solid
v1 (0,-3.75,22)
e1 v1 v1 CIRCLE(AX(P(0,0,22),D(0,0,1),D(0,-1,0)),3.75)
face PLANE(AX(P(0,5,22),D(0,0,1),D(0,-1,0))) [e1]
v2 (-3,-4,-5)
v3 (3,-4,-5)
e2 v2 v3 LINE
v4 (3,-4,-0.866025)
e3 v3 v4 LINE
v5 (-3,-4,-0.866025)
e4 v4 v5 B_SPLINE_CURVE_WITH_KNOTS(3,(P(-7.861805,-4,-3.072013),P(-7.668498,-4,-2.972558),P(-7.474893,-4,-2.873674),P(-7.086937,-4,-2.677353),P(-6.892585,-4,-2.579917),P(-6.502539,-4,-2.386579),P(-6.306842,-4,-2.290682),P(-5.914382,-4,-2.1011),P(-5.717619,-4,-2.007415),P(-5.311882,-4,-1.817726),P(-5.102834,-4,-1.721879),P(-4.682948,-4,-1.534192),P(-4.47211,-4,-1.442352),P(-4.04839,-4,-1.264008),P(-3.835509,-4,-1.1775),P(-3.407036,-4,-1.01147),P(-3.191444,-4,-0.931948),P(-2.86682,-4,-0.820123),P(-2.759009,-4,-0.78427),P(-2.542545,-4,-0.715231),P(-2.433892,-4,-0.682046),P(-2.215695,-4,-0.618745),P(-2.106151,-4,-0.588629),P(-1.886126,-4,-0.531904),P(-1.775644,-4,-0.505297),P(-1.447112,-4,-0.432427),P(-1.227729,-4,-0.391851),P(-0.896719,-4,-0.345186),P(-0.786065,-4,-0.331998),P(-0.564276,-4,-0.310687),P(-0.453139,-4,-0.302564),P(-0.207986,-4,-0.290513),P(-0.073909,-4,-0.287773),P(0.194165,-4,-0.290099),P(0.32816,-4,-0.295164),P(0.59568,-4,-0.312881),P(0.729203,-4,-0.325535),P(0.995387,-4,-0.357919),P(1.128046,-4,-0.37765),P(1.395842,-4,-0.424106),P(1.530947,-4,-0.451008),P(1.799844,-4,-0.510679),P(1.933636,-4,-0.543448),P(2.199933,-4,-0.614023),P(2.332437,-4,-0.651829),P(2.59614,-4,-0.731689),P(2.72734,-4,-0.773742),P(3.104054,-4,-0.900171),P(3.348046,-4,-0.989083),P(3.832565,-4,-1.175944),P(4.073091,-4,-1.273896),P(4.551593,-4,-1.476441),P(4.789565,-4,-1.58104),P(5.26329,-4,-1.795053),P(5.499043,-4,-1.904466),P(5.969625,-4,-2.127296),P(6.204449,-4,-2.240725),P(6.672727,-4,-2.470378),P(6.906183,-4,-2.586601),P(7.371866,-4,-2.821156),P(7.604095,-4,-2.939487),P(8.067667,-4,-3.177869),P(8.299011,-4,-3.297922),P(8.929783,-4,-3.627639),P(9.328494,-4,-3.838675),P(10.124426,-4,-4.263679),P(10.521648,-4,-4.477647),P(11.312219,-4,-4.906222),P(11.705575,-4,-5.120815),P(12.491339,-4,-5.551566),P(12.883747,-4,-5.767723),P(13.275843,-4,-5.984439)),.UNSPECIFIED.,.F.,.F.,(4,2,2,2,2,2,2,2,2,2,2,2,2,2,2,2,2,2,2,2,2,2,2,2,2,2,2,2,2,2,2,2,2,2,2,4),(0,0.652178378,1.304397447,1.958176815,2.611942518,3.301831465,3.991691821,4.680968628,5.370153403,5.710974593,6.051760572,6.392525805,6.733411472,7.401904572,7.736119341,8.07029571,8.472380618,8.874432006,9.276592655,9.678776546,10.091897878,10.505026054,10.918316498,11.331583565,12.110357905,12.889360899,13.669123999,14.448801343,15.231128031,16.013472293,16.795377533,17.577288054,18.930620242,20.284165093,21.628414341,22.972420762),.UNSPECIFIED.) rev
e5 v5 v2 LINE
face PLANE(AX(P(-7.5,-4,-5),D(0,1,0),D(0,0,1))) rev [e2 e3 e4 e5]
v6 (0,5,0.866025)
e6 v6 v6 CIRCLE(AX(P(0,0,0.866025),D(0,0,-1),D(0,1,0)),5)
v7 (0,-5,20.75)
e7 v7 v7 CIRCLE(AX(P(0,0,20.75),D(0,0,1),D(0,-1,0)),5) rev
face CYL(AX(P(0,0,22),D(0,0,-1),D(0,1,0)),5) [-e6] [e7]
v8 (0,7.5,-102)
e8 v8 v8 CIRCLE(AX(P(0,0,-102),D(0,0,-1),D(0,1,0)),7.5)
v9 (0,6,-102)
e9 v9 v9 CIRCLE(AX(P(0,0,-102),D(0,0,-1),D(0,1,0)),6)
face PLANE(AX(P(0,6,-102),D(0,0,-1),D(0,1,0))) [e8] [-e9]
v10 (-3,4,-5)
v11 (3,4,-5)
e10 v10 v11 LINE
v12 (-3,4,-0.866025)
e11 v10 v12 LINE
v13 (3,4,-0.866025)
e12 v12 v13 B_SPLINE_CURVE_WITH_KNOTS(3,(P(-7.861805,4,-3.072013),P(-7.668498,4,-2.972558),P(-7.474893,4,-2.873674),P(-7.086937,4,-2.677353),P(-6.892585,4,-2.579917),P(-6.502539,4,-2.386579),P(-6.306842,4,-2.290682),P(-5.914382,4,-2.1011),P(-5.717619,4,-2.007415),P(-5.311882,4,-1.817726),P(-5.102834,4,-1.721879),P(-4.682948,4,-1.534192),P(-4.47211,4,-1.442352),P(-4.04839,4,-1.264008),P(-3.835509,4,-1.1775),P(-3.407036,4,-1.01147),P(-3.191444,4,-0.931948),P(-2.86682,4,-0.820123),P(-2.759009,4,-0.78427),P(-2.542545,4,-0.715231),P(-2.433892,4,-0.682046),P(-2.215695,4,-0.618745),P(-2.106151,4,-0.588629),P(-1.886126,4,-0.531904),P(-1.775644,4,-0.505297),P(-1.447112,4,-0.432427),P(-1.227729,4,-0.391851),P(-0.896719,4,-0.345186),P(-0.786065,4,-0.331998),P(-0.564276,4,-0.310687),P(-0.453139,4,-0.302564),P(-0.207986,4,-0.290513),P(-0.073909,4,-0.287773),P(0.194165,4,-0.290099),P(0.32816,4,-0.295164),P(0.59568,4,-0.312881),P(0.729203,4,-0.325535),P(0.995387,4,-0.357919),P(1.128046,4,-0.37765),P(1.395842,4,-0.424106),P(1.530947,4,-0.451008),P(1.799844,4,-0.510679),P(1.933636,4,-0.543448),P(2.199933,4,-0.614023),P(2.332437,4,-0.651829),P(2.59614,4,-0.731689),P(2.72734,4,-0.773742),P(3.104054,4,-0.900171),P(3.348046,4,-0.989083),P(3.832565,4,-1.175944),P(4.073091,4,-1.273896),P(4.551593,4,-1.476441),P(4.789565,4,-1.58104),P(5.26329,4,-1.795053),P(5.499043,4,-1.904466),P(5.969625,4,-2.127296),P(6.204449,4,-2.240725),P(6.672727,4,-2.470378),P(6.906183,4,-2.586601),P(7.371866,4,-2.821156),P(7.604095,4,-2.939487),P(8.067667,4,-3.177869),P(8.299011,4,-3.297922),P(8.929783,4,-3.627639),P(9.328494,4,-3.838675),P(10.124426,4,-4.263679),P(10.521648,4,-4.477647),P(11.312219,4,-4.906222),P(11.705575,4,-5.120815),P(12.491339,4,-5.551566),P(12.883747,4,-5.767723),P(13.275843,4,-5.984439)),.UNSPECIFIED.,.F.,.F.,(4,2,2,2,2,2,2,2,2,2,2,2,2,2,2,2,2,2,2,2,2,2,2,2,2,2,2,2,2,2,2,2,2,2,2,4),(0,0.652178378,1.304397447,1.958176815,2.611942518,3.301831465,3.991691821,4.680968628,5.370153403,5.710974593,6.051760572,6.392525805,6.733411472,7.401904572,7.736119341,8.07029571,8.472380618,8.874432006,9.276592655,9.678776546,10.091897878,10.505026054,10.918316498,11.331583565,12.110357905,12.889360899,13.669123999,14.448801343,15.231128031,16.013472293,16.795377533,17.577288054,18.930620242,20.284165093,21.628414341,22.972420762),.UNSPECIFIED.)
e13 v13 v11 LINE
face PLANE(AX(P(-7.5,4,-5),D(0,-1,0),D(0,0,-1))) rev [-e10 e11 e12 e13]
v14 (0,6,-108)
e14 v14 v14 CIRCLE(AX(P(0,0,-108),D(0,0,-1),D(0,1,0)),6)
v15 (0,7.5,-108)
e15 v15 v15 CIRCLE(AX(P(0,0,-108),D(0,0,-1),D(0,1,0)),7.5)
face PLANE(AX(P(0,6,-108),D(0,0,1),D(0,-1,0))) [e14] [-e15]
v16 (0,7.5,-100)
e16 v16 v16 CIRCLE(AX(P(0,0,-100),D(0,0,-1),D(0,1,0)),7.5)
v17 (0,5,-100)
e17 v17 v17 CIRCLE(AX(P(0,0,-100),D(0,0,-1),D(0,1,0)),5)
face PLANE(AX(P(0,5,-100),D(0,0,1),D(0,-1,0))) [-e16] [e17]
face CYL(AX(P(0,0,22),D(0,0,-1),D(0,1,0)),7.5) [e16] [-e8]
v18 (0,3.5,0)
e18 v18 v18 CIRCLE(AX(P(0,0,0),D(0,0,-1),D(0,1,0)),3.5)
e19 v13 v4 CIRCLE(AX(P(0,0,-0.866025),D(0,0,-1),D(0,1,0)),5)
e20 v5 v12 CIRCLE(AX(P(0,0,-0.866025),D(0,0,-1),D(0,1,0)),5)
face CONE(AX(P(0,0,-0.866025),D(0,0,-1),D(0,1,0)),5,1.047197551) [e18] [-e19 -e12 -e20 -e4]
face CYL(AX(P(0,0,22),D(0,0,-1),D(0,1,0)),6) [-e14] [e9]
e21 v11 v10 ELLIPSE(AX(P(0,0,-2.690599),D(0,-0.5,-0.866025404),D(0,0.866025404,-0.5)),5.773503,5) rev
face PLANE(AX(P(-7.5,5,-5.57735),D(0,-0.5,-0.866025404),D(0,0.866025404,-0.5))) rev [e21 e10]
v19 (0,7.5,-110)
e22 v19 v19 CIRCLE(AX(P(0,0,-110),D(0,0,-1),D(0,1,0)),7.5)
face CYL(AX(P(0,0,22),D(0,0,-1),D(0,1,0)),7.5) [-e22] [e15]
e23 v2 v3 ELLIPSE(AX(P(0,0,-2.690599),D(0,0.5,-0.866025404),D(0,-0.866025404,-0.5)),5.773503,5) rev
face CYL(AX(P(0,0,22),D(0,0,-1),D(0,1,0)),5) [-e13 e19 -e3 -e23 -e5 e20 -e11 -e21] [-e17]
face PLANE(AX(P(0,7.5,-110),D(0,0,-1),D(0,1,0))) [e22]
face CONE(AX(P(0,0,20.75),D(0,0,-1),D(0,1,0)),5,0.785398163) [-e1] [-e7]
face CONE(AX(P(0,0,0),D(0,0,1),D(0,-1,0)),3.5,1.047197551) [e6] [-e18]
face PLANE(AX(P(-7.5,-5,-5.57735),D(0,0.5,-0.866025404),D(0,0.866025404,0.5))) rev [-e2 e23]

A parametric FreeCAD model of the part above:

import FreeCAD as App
import Part
import Sketcher
Q = App.Units.Quantity


def edges_at(feature, points):
    """Names of the edges that pass closest to the given points."""
    edges = feature.Shape.Edges
    near = lambda p: min(range(len(edges)), key=lambda i: edges[i].distToShape(Part.Vertex(*p))[0])
    return sorted({f"Edge{near(p) + 1}" for p in points})


def add_polygon(sketch, points):
    """Adds a closed chain of lines whose ends are joined by coincident constraints."""
    first, n = sketch.GeometryCount, len(points)
    for a, b in zip(points, points[1:] + points[:1]):
        sketch.addGeometry(Part.LineSegment(App.Vector(*a, 0), App.Vector(*b, 0)), False)
    for i in range(n):
        sketch.addConstraint(Sketcher.Constraint("Coincident", first + i, 2, first + (i + 1) % n, 1))

doc = App.newDocument("Part")
body = doc.addObject("PartDesign::Body", "Body")

sketch1 = body.newObject("Sketcher::SketchObject", "Sketch")
sketch1.AttachmentSupport = (doc.getObject("YZ_Plane"), [""])
sketch1.MapMode = "FlatFace"
add_polygon(sketch1, [(0, 22), (0, -110), (7.5, -110), (7.5, -108), (6, -108), (6, -102), (7.5, -102), (7.5, -100), (5, -100), (5, -0.9), (3.5, 0), (5, 0.9), (5, 22)])
sketch1.addConstraint([
    Sketcher.Constraint("Vertical", 0),
    Sketcher.Constraint("Horizontal", 1),
    Sketcher.Constraint("Vertical", 2),
    Sketcher.Constraint("Horizontal", 3),
    Sketcher.Constraint("Vertical", 4),
    Sketcher.Constraint("Horizontal", 5),
    Sketcher.Constraint("Vertical", 6),
    Sketcher.Constraint("Horizontal", 7),
    Sketcher.Constraint("Vertical", 8),
    Sketcher.Constraint("Vertical", 11),
    Sketcher.Constraint("Horizontal", 12),
    Sketcher.Constraint("Symmetric", 8, 2, 10, 2, -1),
    Sketcher.Constraint("PointOnObject", 0, 2, -2),
    Sketcher.Constraint("PointOnObject", 9, 2, -1),
    Sketcher.Constraint("Vertical", 2, 2, 5, 2),
    Sketcher.Constraint("Equal", 2, 6),
    Sketcher.Constraint("DistanceX", 12, 2, 12, 1, 5.0),
    Sketcher.Constraint("DistanceY", 0, 2, 0, 1, 132.0),
    Sketcher.Constraint("DistanceY", 2, 1, 2, 2, 2.0),
    Sketcher.Constraint("DistanceY", 4, 1, 4, 2, 6.0),
    Sketcher.Constraint("Angle", 9, Q("150 deg")),
    Sketcher.Constraint("DistanceX", 1, 1, 1, 2, 7.5),
    Sketcher.Constraint("DistanceX", 3, 2, 3, 1, 1.5),
    Sketcher.Constraint("DistanceY", 0, 2, -1, 1, 110.0),
    Sketcher.Constraint("DistanceX", 9, 2, 6, 2, 4.0),
])
revolution = body.newObject("PartDesign::Revolution", "Revolution")
revolution.Profile = sketch1
revolution.ReferenceAxis = (sketch1, ["V_Axis"])
revolution.Angle = 360
doc.recompute()

chamfer = body.newObject("PartDesign::Chamfer", "Chamfer")
chamfer.Base = (revolution, edges_at(revolution, [(0, -5, 22)]))
chamfer.Size = 1.25

sketch2 = body.newObject("Sketcher::SketchObject", "Sketch001")
sketch2.AttachmentSupport = (doc.getObject("YZ_Plane"), [""])
sketch2.MapMode = "FlatFace"
add_polygon(sketch2, [(5, -5.6), (5, 0), (4, 0), (4, -5)])
add_polygon(sketch2, [(-4, 0), (-5, 0), (-5, -5.6), (-4, -5)])
sketch2.addConstraint([
    Sketcher.Constraint("Vertical", 0),
    Sketcher.Constraint("Horizontal", 1),
    Sketcher.Constraint("Vertical", 2),
    Sketcher.Constraint("Horizontal", 4),
    Sketcher.Constraint("Vertical", 5),
    Sketcher.Constraint("Vertical", 7),
    Sketcher.Constraint("Symmetric", 0, 2, 4, 2, -1, 1),
    Sketcher.Constraint("Symmetric", 2, 2, 6, 2, -2),
    Sketcher.Constraint("PointOnObject", 0, 2, -1),
    Sketcher.Constraint("Horizontal", 3, 2, 5, 2),
    Sketcher.Constraint("DistanceX", 1, 2, 1, 1, 1.0),
    Sketcher.Constraint("DistanceY", 2, 2, 2, 1, 5.0),
    Sketcher.Constraint("Angle", 3, Q("-30 deg")),
    Sketcher.Constraint("DistanceX", -1, 1, 0, 2, 5.0),
])
pocket1 = body.newObject("PartDesign::Pocket", "Pocket")
pocket1.Profile = sketch2
pocket1.Type = "ThroughAll"
pocket1.Midplane = True

doc.recompute()
